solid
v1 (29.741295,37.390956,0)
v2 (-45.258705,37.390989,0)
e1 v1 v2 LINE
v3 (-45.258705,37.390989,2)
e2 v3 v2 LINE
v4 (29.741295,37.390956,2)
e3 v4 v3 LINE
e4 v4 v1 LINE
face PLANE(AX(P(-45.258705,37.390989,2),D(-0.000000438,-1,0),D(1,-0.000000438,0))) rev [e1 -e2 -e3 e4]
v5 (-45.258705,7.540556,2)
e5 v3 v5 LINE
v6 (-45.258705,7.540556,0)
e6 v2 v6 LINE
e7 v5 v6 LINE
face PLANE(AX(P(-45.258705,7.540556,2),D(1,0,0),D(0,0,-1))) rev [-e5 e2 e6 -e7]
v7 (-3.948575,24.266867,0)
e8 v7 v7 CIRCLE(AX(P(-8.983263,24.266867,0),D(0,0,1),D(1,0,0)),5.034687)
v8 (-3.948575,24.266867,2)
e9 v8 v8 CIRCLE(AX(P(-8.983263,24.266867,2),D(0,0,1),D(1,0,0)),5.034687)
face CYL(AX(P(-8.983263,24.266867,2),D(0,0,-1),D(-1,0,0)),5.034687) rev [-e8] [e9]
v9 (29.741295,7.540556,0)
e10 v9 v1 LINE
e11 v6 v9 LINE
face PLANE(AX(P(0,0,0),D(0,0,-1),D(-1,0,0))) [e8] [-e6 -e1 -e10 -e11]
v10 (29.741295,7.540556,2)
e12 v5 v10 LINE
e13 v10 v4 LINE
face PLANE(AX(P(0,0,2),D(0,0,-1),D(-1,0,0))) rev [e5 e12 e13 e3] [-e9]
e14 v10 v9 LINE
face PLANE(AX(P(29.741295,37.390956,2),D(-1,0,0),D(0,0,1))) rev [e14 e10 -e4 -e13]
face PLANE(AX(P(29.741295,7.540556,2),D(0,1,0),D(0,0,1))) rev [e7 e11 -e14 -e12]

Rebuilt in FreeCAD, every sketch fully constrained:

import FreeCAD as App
import Part
import Sketcher
from FreeCAD import Vector
Q = App.Units.Quantity


def add_polygon(sketch, points):
    """Adds a closed chain of lines whose ends are joined by coincident constraints."""
    first, n = sketch.GeometryCount, len(points)
    for a, b in zip(points, points[1:] + points[:1]):
        sketch.addGeometry(Part.LineSegment(App.Vector(*a, 0), App.Vector(*b, 0)), False)
    for i in range(n):
        sketch.addConstraint(Sketcher.Constraint("Coincident", first + i, 2, first + (i + 1) % n, 1))

doc = App.newDocument("Part")
body = doc.addObject("PartDesign::Body", "Body")

sketch1 = doc.addObject("Sketcher::SketchObject", "Sketch")
body.addObject(sketch1)
sketch1.AttachmentSupport = (doc.XY_Plane, [""])
sketch1.MapMode = "FlatFace"
add_polygon(sketch1, [(-45, 8), (30, 8), (30, 37), (-45, 37)])
sketch1.addGeometry(Part.Circle(Vector(-9, 24, 0), Vector(0, 0, 1), 5), False)
sketch1.addConstraint(Sketcher.Constraint("Horizontal", 0))
sketch1.addConstraint(Sketcher.Constraint("Vertical", 1))
sketch1.addConstraint(Sketcher.Constraint("Vertical", 3))
sketch1.addConstraint(Sketcher.Constraint("DistanceX", 0, 1, 0, 2, Q("75 mm")))
sketch1.addConstraint(Sketcher.Constraint("Diameter", 4, Q("10.069375 mm")))
sketch1.addConstraint(Sketcher.Constraint("DistanceY", 1, 1, 1, 2, Q("29.8504 mm")))
sketch1.addConstraint(Sketcher.Constraint("DistanceY", 3, 2, 3, 1, Q("29.850433 mm")))
sketch1.addConstraint(Sketcher.Constraint("DistanceY", -1, 1, 2, 2, Q("37.390989 mm")))
sketch1.addConstraint(Sketcher.Constraint("DistanceY", 0, 2, 4, 3, Q("16.726311 mm")))
sketch1.addConstraint(Sketcher.Constraint("DistanceX", 4, 3, -1, 1, Q("8.983263 mm")))
sketch1.addConstraint(Sketcher.Constraint("DistanceX", -1, 1, 0, 2, Q("29.741295 mm")))
pad1 = doc.addObject("PartDesign::Pad", "Pad")
body.addObject(pad1)
pad1.Profile = sketch1
pad1.Length = 2

doc.recompute()
